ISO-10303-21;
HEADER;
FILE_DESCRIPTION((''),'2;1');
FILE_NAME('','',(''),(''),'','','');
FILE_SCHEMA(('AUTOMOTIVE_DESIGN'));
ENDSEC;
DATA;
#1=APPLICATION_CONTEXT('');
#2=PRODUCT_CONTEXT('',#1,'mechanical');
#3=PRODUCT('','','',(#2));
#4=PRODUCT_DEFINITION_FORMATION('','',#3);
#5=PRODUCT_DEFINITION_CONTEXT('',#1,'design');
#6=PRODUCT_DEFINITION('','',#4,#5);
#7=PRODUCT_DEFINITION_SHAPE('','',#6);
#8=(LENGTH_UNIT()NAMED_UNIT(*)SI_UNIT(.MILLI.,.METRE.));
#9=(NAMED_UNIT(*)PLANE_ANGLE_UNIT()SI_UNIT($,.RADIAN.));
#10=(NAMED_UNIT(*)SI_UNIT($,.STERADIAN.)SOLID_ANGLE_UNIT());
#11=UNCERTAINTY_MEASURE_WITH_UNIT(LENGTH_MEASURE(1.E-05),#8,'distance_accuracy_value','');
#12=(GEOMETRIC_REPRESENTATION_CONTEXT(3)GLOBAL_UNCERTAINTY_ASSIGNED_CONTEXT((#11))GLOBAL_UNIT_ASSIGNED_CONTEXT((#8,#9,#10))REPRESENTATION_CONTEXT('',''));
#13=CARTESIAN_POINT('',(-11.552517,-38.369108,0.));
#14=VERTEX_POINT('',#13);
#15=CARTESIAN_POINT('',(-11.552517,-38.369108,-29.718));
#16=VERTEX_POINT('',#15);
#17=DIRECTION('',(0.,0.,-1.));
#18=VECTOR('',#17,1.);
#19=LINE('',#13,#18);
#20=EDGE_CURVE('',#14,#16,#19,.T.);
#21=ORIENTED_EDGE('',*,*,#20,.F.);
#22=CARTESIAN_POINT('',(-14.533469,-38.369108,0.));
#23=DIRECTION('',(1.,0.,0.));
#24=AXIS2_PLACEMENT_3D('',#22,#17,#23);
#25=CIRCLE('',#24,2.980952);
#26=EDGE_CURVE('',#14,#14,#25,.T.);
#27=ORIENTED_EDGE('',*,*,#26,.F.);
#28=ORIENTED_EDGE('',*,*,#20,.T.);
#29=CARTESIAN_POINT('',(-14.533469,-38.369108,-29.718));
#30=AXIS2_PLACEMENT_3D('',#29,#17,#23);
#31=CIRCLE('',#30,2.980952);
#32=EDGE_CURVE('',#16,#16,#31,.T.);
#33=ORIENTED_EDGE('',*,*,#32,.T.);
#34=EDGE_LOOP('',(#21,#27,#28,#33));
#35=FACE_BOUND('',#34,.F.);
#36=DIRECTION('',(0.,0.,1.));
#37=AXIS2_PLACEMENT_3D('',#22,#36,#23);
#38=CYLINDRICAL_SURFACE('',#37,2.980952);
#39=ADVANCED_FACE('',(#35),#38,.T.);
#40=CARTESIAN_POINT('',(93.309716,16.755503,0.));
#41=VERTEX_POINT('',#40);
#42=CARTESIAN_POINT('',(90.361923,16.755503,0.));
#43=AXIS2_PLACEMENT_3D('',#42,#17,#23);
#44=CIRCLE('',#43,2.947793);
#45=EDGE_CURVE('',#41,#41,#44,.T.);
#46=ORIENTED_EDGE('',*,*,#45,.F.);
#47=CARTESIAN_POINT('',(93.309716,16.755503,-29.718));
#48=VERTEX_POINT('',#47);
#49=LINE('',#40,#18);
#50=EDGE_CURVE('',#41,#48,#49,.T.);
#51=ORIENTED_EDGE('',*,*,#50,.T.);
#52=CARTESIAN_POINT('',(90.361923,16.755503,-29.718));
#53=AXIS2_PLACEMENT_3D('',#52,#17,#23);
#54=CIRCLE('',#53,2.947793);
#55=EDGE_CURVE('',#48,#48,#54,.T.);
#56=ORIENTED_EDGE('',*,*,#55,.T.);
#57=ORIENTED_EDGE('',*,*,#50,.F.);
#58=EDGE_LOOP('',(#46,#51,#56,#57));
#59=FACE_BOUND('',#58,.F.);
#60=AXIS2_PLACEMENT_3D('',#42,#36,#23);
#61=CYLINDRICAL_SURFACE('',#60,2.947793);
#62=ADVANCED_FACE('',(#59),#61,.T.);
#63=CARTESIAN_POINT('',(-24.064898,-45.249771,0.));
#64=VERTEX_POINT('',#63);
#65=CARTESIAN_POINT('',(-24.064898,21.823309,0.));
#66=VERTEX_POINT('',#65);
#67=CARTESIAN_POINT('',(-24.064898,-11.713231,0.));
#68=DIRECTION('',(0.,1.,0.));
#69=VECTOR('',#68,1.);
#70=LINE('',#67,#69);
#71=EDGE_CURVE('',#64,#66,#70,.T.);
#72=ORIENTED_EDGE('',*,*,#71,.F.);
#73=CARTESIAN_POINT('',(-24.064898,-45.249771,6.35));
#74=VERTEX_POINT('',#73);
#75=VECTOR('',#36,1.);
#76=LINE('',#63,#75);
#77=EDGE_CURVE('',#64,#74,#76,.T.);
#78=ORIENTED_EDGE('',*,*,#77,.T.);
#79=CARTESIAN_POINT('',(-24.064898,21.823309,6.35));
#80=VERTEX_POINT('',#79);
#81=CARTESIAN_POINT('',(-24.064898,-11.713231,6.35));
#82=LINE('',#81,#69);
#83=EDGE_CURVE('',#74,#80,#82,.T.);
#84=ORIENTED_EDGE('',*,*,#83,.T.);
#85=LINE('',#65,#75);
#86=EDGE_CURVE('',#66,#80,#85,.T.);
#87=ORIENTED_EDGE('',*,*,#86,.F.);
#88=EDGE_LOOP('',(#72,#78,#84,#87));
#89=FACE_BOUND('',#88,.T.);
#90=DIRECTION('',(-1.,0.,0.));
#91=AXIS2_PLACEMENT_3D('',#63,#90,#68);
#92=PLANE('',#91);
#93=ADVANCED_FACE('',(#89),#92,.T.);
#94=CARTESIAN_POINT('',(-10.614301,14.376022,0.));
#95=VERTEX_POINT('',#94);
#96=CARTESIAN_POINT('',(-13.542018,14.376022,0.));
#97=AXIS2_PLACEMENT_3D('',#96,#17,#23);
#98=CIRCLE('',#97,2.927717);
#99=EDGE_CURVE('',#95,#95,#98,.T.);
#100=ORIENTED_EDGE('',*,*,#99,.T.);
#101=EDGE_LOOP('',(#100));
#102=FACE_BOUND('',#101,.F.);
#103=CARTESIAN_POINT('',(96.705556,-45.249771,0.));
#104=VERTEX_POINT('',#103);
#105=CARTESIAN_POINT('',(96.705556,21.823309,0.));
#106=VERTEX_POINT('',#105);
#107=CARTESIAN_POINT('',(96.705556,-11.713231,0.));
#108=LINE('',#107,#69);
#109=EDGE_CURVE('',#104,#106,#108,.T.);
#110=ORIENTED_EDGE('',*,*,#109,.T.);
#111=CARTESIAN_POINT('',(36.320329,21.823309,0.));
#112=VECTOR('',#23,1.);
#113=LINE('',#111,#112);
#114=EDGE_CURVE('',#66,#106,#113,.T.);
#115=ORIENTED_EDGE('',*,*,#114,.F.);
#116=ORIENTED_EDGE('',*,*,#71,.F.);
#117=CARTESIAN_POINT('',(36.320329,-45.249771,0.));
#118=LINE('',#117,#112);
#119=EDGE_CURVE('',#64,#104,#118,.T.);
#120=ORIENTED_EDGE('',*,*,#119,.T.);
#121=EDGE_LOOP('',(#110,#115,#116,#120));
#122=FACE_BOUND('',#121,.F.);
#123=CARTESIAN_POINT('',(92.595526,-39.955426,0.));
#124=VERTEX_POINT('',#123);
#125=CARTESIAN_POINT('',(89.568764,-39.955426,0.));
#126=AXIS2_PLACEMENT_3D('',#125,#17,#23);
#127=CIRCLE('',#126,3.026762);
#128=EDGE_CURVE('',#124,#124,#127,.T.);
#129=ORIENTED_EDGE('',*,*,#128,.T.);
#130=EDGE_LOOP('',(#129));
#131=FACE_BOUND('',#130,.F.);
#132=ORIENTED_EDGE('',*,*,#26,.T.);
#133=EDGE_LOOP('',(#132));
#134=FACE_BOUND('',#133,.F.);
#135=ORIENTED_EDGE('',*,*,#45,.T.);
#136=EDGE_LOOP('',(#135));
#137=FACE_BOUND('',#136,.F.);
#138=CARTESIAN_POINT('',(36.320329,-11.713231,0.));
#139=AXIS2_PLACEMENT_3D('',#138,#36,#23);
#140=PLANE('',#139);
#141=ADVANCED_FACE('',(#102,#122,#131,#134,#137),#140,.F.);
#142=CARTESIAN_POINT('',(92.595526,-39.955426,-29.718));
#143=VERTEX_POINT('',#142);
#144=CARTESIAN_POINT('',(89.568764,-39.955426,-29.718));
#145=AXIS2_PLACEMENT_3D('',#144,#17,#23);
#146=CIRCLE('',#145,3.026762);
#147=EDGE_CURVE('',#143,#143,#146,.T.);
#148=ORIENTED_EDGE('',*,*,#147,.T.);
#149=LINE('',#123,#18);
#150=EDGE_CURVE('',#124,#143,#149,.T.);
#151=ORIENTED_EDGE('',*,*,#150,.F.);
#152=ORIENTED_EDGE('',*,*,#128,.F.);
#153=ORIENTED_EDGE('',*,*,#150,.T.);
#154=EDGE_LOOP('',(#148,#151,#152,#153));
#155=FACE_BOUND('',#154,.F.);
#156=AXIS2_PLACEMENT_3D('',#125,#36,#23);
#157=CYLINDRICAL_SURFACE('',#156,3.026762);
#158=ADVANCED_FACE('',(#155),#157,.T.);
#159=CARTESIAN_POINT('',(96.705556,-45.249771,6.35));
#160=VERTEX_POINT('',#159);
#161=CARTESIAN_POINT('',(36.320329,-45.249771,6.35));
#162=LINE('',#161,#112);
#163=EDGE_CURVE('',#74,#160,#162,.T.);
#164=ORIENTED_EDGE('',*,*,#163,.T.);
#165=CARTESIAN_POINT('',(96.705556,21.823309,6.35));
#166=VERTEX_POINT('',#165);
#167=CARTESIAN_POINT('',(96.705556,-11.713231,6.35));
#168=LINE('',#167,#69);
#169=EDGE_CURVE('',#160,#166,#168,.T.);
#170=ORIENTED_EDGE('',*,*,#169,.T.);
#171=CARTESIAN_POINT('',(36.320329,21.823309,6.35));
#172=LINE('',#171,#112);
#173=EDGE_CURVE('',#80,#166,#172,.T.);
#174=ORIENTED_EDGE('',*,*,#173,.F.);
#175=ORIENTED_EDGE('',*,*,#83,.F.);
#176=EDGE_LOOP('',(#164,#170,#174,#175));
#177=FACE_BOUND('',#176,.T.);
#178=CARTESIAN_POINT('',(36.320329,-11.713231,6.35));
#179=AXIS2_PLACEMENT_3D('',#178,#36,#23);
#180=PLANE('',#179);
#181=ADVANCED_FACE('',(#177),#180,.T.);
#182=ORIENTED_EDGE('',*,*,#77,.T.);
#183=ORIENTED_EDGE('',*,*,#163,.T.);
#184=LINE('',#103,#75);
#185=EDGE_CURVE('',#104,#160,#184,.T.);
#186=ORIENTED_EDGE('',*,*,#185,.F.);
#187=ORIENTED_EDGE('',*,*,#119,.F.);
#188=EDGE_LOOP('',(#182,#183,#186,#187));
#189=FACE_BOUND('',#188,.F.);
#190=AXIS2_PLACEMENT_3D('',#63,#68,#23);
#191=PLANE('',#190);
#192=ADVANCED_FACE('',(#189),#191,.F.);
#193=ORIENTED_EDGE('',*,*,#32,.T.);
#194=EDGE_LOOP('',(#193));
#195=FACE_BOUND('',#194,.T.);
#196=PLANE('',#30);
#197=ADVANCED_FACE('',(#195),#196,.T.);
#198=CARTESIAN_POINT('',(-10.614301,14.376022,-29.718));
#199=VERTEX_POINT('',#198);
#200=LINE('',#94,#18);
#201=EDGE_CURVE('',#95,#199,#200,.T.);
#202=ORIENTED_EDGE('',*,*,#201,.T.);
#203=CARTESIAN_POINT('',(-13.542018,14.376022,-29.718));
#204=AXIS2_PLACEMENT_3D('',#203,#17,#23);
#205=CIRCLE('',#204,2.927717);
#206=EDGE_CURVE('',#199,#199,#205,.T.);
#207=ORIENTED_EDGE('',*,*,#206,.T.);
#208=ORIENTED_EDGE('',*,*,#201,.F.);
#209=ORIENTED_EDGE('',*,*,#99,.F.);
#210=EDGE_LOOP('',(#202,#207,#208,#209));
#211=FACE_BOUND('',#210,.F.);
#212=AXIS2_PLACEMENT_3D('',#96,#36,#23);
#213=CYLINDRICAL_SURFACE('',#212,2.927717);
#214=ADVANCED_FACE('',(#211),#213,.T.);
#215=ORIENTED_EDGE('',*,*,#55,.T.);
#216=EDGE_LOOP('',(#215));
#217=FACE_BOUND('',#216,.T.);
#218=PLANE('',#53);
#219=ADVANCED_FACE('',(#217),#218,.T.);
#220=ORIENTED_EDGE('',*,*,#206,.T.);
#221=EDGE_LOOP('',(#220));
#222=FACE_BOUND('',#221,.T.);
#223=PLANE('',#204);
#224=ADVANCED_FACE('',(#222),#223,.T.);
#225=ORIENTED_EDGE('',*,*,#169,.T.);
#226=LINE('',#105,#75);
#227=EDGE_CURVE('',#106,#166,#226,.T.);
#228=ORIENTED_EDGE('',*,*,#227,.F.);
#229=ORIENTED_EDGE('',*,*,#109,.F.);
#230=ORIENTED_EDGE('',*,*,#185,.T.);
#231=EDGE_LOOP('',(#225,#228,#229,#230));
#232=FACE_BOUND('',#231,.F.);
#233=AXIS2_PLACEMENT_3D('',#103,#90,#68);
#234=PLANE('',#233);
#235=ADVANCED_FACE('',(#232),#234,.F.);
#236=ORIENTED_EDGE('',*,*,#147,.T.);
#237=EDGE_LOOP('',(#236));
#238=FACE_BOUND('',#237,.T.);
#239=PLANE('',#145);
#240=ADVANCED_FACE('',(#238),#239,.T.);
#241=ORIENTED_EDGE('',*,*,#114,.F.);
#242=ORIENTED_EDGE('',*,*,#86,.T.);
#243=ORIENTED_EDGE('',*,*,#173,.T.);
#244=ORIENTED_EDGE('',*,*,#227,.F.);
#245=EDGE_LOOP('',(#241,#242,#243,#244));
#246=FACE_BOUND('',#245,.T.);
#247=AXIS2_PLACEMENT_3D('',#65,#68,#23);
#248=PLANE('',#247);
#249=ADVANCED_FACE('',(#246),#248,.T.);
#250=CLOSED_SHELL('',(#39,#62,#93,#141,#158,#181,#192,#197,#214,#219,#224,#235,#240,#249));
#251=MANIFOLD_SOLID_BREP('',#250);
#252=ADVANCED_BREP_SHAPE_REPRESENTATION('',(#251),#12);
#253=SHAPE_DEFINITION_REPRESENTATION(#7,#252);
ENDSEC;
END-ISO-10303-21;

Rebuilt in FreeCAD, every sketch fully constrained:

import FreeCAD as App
import Part
import Sketcher

V = App.Vector
Q = App.Units.Quantity


def add_polygon(sketch, points):
    """Adds a closed chain of lines whose ends are joined by coincident constraints."""
    first, n = sketch.GeometryCount, len(points)
    for a, b in zip(points, points[1:] + points[:1]):
        sketch.addGeometry(Part.LineSegment(App.Vector(*a, 0), App.Vector(*b, 0)), False)
    for i in range(n):
        sketch.addConstraint(Sketcher.Constraint("Coincident", first + i, 2, first + (i + 1) % n, 1))

doc = App.newDocument("Part")
params = doc.addObject("Spreadsheet::Sheet", "Params")
for row, (alias, value) in enumerate([
    ("pad1_length", "0.25 in"),
    ("pad2_length", "1.17 in"),
], start=1):
    params.set(f"A{row}", alias)
    params.set(f"B{row}", "=" + value)
    params.setAlias(f"B{row}", alias)

body = doc.addObject("PartDesign::Body", "Body")

# Sketch on XY plane
sketch1 = body.newObject("Sketcher::SketchObject", "Sketch")
sketch1.AttachmentSupport = (doc.getObject("XY_Plane"), [""])
sketch1.MapMode = "FlatFace"
add_polygon(sketch1, [(-24, 22), (-24, -45), (97, -45), (97, 22)])  # lines 0-3
sketch1.addConstraint([
    Sketcher.Constraint("Vertical", 0),
    Sketcher.Constraint("Horizontal", 1),
    Sketcher.Constraint("Vertical", 2),
    Sketcher.Constraint("Horizontal", 3),
    Sketcher.Constraint("DistanceY", 0, 2, 0, 1, Q("67.07308 mm")),
    Sketcher.Constraint("DistanceX", 1, 1, 1, 2, Q("120.770454 mm")),
    Sketcher.Constraint("DistanceY", 0, 2, -1, 1, Q("45.249771 mm")),
    Sketcher.Constraint("DistanceX", 0, 2, -1, 1, Q("24.064898 mm")),
])
pad1 = body.newObject("PartDesign::Pad", "Pad")
pad1.Profile = sketch1
pad1.setExpression("Length", "Params.pad1_length")

# Sketch on XY plane
sketch2 = body.newObject("Sketcher::SketchObject", "Sketch001")
sketch2.AttachmentSupport = (doc.getObject("XY_Plane"), [""])
sketch2.MapMode = "FlatFace"
sketch2.addGeometry([
    Part.Circle(V(-14.5, -38.4, 0), V(0, 0, 1), 3),
    Part.Circle(V(-13.5, 14.4, 0), V(0, 0, 1), 2.9),
    Part.Circle(V(89.6, -40, 0), V(0, 0, 1), 3),
    Part.Circle(V(90.4, 16.8, 0), V(0, 0, 1), 2.9),
], False)
sketch2.addConstraint([
    Sketcher.Constraint("Diameter", 0, Q("5.961904 mm")),
    Sketcher.Constraint("Diameter", 1, Q("5.855434 mm")),
    Sketcher.Constraint("Diameter", 2, Q("6.053524 mm")),
    Sketcher.Constraint("Diameter", 3, Q("5.895586 mm")),
    Sketcher.Constraint("DistanceX", 0, 3, -1, 1, Q("14.533469 mm")),
    Sketcher.Constraint("DistanceX", 0, 3, 1, 3, Q("0.991451 mm")),
    Sketcher.Constraint("DistanceY", 0, 3, 1, 3, Q("52.74513 mm")),
    Sketcher.Constraint("DistanceY", 2, 3, 0, 3, Q("1.586318 mm")),
    Sketcher.Constraint("DistanceX", 1, 3, 2, 3, Q("103.110782 mm")),
    Sketcher.Constraint("DistanceX", 2, 3, 3, 3, Q("0.793159 mm")),
    Sketcher.Constraint("DistanceY", 2, 3, 3, 3, Q("56.710929 mm")),
    Sketcher.Constraint("DistanceY", 0, 3, -1, 1, Q("38.369108 mm")),
])
pad2 = body.newObject("PartDesign::Pad", "Pad001")
pad2.Profile = sketch2
pad2.setExpression("Length", "Params.pad2_length")
pad2.Reversed = True

doc.recompute()
